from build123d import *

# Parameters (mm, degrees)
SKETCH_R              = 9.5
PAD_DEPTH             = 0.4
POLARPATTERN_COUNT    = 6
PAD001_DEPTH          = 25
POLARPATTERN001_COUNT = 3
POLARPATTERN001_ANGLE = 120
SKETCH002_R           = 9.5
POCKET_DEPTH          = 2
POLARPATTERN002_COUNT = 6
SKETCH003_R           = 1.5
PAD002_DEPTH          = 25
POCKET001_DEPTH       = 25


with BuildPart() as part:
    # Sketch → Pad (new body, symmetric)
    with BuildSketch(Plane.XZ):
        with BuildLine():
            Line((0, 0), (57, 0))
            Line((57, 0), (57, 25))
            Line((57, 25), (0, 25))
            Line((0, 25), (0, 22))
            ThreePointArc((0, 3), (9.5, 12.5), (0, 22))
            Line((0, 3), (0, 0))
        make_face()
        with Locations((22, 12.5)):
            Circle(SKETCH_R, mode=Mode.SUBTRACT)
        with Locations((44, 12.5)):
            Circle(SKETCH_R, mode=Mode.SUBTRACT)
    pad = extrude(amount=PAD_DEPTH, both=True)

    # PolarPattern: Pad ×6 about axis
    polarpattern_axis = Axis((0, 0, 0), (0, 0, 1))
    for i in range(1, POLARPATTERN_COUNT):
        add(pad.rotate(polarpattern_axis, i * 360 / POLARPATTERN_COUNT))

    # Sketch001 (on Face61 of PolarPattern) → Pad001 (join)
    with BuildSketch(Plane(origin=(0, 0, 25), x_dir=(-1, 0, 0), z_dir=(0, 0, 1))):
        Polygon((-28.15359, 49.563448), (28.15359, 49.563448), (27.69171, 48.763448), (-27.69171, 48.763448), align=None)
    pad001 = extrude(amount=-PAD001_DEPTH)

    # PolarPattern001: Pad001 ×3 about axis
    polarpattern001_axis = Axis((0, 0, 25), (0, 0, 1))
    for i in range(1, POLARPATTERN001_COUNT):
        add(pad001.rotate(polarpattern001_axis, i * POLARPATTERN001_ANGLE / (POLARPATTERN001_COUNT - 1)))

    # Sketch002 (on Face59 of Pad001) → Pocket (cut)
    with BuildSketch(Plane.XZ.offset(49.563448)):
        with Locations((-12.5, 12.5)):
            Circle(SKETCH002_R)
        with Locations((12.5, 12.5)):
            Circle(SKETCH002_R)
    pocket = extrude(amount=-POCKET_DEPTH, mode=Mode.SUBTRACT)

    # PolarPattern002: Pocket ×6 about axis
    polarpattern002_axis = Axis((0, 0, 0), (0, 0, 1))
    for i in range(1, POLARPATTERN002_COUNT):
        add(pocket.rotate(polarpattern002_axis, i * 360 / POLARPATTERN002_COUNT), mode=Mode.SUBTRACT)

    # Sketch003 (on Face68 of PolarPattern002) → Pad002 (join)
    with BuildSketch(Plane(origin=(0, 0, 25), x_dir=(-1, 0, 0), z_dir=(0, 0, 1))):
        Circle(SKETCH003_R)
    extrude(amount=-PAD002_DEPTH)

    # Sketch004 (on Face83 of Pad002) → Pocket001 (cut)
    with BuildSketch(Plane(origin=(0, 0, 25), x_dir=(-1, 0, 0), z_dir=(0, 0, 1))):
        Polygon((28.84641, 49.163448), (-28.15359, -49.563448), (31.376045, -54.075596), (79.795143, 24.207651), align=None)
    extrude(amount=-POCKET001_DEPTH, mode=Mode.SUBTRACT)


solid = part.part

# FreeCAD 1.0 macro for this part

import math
import FreeCAD as App
import Part
import Sketcher

V = App.Vector
Q = App.Units.Quantity


def add_polygon(sketch, points):
    """Adds a closed chain of lines whose ends are joined by coincident constraints."""
    first, n = sketch.GeometryCount, len(points)
    for a, b in zip(points, points[1:] + points[:1]):
        sketch.addGeometry(Part.LineSegment(App.Vector(*a, 0), App.Vector(*b, 0)), False)
    for i in range(n):
        sketch.addConstraint(Sketcher.Constraint("Coincident", first + i, 2, first + (i + 1) % n, 1))

doc = App.newDocument("Part")
body = doc.addObject("PartDesign::Body", "Body")

# Sketch on XZ plane
sketch1 = doc.addObject("Sketcher::SketchObject", "Sketch")
body.addObject(sketch1)
sketch1.AttachmentSupport = (doc.XZ_Plane, [""])
sketch1.MapMode = "FlatFace"
sketch1.addGeometry([
    Part.LineSegment(V(0, 0, 0), V(57, 0, 0)),  # 0
    Part.LineSegment(V(57, 0, 0), V(57, 25, 0)),  # 1
    Part.LineSegment(V(57, 25, 0), V(0, 25, 0)),  # 2
    Part.LineSegment(V(0, 25, 0), V(0, 22, 0)),  # 3
    Part.ArcOfCircle(Part.Circle(V(0, 12.5, 0), V(0, 0, 1), 9.5), math.radians(-90), math.radians(90)),  # 4
    Part.LineSegment(V(0, 3, 0), V(0, 0, 0)),  # 5
    Part.Circle(V(22, 12.5, 0), V(0, 0, 1), 9.5),  # 6
    Part.Circle(V(44, 12.5, 0), V(0, 0, 1), 9.5),  # 7
], False)
sketch1.addConstraint([
    Sketcher.Constraint("Coincident", 0, 2, 1, 1),
    Sketcher.Constraint("Coincident", 1, 2, 2, 1),
    Sketcher.Constraint("Coincident", 2, 2, 3, 1),
    Sketcher.Constraint("Coincident", 3, 2, 4, 2),
    Sketcher.Constraint("Coincident", 4, 1, 5, 1),
    Sketcher.Constraint("Coincident", 5, 2, 0, 1),
    Sketcher.Constraint("Horizontal", 0),
    Sketcher.Constraint("Vertical", 1),
    Sketcher.Constraint("Horizontal", 2),
    Sketcher.Constraint("Vertical", 3),
    Sketcher.Constraint("Vertical", 5),
    Sketcher.Constraint("Coincident", 5, 2, -1, 1),
    Sketcher.Constraint("Equal", 4, 6),
    Sketcher.Constraint("Equal", 6, 7),
    Sketcher.Constraint("PointOnObject", 4, 3, -2),
    Sketcher.Constraint("PointOnObject", 2, 2, -2),
    Sketcher.Constraint("Horizontal", 4, 3, 6, 3),
    Sketcher.Constraint("Horizontal", 6, 3, 7, 3),
    Sketcher.Constraint("Equal", 3, 5),
    Sketcher.Constraint("Diameter", 6, 19.0),
    Sketcher.Constraint("DistanceX", 0, 1, 0, 2, 57.0),
    Sketcher.Constraint("DistanceY", 1, 1, 1, 2, 25.0),
    Sketcher.Constraint("DistanceX", -1, 1, 6, 3, 22.0),
    Sketcher.Constraint("DistanceX", -1, 1, 7, 3, 44.0),
])
pad1 = doc.addObject("PartDesign::Pad", "Pad")
body.addObject(pad1)
pad1.Profile = sketch1
pad1.Length = 0.8
pad1.Midplane = True
doc.recompute()

polarpattern = doc.addObject("PartDesign::PolarPattern", "PolarPattern")
body.addObject(polarpattern)
polarpattern.Originals = [pad1]
polarpattern.Axis = (doc.Z_Axis, [""])
polarpattern.Angle = 360
polarpattern.Occurrences = 6
body.Tip = polarpattern

# Sketch on XY plane
sketch2 = doc.addObject("Sketcher::SketchObject", "Sketch001")
body.addObject(sketch2)
sketch2.AttachmentSupport = (doc.XY_Plane, [""])
sketch2.MapMode = "FlatFace"
sketch2.AttachmentOffset = App.Placement(V(0, 0, 25), App.Rotation())
add_polygon(sketch2, [(-28.2, -49.6), (28.2, -49.6), (27.7, -48.8), (-27.7, -48.8)])  # lines 0-3
sketch2.addConstraint([
    Sketcher.Constraint("Horizontal", 0),
    Sketcher.Constraint("Horizontal", 2),
    Sketcher.Constraint("Equal", 1, 3),
    Sketcher.Constraint("Angle", 1, Q("119.999988 deg")),
    Sketcher.Constraint("DistanceY", 0, 2, 1, 2, 0.8),
    Sketcher.Constraint("DistanceX", 0, 1, 0, 2, 56.30718),
    Sketcher.Constraint("DistanceX", -1, 1, 0, 2, 28.15359),
    Sketcher.Constraint("DistanceY", 0, 2, -1, 1, 49.563448),
])
pad2 = doc.addObject("PartDesign::Pad", "Pad001")
body.addObject(pad2)
pad2.Profile = sketch2
pad2.Length = 25
pad2.Reversed = True
doc.recompute()

polarpattern2 = doc.addObject("PartDesign::PolarPattern", "PolarPattern001")
body.addObject(polarpattern2)
polarpattern2.Originals = [pad2]
polarpattern2.Axis = (doc.Z_Axis, [""])
polarpattern2.Angle = 120
polarpattern2.Occurrences = 3
body.Tip = polarpattern2

# Sketch on XZ plane
sketch3 = doc.addObject("Sketcher::SketchObject", "Sketch002")
body.addObject(sketch3)
sketch3.AttachmentSupport = (doc.XZ_Plane, [""])
sketch3.MapMode = "FlatFace"
sketch3.AttachmentOffset = App.Placement(V(0, 0, 49.563448), App.Rotation())
sketch3.addGeometry([
    Part.Circle(V(-12, 12, 0), V(0, 0, 1), 10),
    Part.Circle(V(12, 12, 0), V(0, 0, 1), 10),
], False)
sketch3.addConstraint([
    Sketcher.Constraint("Equal", 0, 1),
    Sketcher.Constraint("Symmetric", 0, 3, 1, 3, -2),
    Sketcher.Constraint("Diameter", 0, 19.0),
    Sketcher.Constraint("DistanceX", 0, 3, 1, 3, 25.0),
    Sketcher.Constraint("DistanceY", -1, 1, 0, 3, 12.5),
])
pocket1 = doc.addObject("PartDesign::Pocket", "Pocket")
body.addObject(pocket1)
pocket1.Profile = sketch3
pocket1.Length = 2
doc.recompute()

polarpattern3 = doc.addObject("PartDesign::PolarPattern", "PolarPattern002")
body.addObject(polarpattern3)
polarpattern3.Originals = [pocket1]
polarpattern3.Axis = (doc.Z_Axis, [""])
polarpattern3.Angle = 360
polarpattern3.Occurrences = 6
body.Tip = polarpattern3

# Sketch on XY plane
sketch4 = doc.addObject("Sketcher::SketchObject", "Sketch003")
body.addObject(sketch4)
sketch4.AttachmentSupport = (doc.XY_Plane, [""])
sketch4.MapMode = "FlatFace"
sketch4.AttachmentOffset = App.Placement(V(0, 0, 25), App.Rotation())
sketch4.addGeometry(Part.Circle(V(0, 0, 0), V(0, 0, 1), 1.5), False)
sketch4.addConstraint([
    Sketcher.Constraint("Coincident", 0, 3, -1, 1),
    Sketcher.Constraint("Diameter", 0, 3.0),
])
pad3 = doc.addObject("PartDesign::Pad", "Pad002")
body.addObject(pad3)
pad3.Profile = sketch4
pad3.Length = 25
pad3.Reversed = True

# Sketch on XY plane
sketch5 = doc.addObject("Sketcher::SketchObject", "Sketch004")
body.addObject(sketch5)
sketch5.AttachmentSupport = (doc.XY_Plane, [""])
sketch5.MapMode = "FlatFace"
sketch5.AttachmentOffset = App.Placement(V(0, 0, 25), App.Rotation())
add_polygon(sketch5, [(-29, -49), (28, 50), (-31, 54), (-80, -24)])  # lines 0-3
sketch5.addConstraint([
    Sketcher.Constraint("Angle", 0, Q("60 deg")),
    Sketcher.Constraint("Distance", 0, 114.0),
    Sketcher.Constraint("Distance", 3, 56.7324),
    Sketcher.Constraint("DistanceY", 2, 2, 0, 2, 73.771099),
    Sketcher.Constraint("Distance", 2, 92.047139),
    Sketcher.Constraint("DistanceX", -1, 1, 0, 2, 28.15359),
    Sketcher.Constraint("DistanceY", 2, 2, -1, 1, 24.207651),
    Sketcher.Constraint("Distance", 1, 59.700393),
])
pocket2 = doc.addObject("PartDesign::Pocket", "Pocket001")
body.addObject(pocket2)
pocket2.Profile = sketch5
pocket2.Length = 25

doc.recompute()
